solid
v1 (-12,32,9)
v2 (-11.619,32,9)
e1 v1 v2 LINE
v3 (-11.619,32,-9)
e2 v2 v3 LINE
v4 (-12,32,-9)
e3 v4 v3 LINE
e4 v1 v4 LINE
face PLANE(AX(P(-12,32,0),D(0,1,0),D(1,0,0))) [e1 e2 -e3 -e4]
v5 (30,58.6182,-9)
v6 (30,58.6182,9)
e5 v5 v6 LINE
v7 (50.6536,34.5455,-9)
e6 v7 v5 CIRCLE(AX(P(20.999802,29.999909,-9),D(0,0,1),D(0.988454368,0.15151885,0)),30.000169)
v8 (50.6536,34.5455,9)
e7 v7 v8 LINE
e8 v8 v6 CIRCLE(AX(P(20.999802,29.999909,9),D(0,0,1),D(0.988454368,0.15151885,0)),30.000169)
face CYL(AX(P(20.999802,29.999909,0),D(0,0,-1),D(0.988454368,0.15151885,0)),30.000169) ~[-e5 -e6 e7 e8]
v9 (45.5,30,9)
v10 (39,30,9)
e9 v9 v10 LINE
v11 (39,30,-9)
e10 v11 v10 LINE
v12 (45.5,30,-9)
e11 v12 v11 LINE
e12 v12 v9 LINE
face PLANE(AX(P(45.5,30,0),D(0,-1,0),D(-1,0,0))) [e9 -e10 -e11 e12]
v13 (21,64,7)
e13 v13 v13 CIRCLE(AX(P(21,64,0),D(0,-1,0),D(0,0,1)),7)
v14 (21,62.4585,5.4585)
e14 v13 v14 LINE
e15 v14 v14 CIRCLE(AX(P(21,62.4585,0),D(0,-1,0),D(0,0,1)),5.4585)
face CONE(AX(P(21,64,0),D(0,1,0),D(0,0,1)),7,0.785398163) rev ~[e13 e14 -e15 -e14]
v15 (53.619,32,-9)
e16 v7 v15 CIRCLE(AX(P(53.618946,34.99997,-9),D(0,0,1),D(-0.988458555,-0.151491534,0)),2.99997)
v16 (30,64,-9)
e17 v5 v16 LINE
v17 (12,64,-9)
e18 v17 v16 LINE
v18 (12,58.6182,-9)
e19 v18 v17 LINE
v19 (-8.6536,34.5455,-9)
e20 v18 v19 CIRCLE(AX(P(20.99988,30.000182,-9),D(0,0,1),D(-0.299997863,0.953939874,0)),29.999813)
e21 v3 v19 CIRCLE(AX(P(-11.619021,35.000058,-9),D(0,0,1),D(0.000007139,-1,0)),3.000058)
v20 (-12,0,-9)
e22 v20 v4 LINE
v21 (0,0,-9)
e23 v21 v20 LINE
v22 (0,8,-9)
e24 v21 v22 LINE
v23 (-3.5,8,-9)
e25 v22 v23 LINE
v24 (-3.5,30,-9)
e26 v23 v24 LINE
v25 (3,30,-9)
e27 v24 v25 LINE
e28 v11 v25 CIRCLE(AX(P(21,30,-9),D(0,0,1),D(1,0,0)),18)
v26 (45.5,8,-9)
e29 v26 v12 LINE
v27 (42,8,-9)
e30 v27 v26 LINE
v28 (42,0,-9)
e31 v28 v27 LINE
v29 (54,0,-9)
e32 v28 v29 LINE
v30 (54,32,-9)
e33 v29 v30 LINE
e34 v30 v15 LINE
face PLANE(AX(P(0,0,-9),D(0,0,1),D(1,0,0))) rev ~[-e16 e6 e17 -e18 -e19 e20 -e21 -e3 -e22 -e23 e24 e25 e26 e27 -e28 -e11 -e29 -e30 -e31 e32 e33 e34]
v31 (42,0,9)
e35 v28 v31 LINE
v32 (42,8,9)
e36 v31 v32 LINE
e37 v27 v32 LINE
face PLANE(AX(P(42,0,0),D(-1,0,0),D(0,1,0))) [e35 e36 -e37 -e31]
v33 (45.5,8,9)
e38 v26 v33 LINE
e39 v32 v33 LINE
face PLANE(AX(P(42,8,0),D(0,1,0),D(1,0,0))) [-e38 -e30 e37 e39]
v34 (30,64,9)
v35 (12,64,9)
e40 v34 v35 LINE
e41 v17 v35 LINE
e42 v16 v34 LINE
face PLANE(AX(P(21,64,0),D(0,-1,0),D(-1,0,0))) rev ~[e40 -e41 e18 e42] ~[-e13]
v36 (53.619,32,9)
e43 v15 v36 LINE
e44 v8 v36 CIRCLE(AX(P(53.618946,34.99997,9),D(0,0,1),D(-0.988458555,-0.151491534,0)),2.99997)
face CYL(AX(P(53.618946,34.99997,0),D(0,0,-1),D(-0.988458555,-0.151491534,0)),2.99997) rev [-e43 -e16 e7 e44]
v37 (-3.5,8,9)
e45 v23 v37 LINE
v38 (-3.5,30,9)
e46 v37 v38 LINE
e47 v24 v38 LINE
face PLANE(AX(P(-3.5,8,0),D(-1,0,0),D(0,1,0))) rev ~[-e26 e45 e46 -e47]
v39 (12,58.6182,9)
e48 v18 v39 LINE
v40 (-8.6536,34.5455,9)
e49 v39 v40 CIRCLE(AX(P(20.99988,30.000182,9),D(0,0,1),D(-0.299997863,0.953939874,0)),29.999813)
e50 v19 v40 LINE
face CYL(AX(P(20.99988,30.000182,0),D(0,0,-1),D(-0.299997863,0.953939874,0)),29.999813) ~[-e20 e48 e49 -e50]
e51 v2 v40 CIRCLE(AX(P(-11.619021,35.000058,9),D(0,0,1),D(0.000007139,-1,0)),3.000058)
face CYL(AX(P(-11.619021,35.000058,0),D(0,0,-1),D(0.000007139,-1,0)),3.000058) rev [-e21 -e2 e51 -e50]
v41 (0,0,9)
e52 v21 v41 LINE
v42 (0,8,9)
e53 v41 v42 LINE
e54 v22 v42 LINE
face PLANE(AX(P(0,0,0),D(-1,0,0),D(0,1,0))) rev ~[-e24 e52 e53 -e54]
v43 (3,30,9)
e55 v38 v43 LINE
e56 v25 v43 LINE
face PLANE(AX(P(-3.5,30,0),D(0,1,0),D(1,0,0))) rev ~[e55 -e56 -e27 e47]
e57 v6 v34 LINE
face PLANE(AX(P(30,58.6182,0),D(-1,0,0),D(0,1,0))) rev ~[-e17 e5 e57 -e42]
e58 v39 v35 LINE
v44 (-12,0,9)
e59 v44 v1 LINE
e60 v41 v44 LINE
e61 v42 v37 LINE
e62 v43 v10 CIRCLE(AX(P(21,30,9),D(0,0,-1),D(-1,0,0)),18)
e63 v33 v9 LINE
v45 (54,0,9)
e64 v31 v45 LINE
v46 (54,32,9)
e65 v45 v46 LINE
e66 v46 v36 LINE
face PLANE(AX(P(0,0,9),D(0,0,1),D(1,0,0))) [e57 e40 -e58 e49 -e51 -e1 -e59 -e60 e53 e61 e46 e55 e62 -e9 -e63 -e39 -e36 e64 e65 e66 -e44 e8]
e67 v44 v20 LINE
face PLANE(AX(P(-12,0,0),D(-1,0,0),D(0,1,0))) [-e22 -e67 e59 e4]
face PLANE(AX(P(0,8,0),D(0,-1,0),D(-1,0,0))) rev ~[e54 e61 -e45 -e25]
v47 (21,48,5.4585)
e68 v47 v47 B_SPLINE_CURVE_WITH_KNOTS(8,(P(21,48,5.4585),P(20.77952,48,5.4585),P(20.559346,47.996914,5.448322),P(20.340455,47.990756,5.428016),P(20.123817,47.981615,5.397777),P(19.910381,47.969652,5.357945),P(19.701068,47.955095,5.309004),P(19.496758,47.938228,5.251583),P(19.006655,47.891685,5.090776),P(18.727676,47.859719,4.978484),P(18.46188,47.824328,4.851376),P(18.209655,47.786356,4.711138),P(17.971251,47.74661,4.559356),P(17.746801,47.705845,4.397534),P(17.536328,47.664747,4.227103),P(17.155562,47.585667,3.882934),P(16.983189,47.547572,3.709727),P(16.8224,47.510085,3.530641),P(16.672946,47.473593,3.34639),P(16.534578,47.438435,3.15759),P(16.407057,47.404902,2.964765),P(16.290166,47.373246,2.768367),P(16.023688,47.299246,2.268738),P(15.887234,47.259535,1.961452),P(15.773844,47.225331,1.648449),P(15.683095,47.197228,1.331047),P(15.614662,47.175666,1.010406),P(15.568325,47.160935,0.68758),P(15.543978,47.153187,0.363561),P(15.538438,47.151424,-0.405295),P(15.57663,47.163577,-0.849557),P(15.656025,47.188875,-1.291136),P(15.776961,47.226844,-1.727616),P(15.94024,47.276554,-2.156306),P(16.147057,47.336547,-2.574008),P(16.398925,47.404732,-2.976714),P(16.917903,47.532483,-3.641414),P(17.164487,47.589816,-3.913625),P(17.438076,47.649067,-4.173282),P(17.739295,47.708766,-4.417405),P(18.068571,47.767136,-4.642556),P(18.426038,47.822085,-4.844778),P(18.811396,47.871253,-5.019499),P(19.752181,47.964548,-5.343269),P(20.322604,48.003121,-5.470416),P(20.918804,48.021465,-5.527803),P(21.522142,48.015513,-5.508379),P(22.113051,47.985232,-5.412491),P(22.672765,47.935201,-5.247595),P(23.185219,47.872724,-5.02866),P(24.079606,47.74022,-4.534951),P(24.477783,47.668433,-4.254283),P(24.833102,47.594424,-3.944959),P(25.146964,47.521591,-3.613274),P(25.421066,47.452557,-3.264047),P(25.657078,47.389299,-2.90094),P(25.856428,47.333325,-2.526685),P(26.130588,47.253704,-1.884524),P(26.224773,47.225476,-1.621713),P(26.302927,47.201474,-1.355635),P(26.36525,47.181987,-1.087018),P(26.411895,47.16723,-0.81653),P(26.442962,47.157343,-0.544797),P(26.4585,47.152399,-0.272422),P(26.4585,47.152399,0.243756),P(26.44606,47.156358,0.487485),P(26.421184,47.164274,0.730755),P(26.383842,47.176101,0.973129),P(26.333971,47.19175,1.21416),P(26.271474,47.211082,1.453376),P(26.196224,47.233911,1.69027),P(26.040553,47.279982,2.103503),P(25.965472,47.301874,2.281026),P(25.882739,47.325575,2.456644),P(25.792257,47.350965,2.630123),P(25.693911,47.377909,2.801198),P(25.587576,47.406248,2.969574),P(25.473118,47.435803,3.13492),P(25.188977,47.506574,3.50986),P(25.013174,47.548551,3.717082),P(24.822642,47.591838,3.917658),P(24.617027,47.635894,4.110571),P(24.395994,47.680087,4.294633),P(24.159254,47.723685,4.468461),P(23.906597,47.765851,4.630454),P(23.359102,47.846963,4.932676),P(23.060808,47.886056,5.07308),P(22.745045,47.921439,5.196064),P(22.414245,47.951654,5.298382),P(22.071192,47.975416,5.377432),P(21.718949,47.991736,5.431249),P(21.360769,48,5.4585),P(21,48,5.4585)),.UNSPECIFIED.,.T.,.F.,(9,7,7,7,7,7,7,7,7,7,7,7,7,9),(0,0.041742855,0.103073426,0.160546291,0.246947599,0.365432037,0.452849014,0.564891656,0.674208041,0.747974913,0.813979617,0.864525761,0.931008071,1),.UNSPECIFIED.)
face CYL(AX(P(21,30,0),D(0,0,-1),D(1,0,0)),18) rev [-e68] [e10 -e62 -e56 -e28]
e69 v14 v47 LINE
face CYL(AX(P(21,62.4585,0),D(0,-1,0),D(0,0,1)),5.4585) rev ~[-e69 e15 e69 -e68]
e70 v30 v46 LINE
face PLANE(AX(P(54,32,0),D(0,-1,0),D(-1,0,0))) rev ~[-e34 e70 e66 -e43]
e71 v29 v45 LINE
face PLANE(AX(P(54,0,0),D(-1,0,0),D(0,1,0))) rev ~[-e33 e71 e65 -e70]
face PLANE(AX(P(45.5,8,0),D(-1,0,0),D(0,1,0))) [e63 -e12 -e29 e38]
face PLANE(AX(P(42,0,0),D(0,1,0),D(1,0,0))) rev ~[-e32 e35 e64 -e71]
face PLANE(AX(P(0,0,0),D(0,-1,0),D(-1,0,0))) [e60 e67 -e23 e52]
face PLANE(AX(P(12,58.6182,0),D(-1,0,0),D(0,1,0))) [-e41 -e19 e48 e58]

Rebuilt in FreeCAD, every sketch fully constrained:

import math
import FreeCAD as App
import Part
import Sketcher
from FreeCAD import Vector

doc = App.newDocument("Part")
body = doc.addObject("PartDesign::Body", "Body")

# Sketch on XY plane
sketch1 = doc.addObject("Sketcher::SketchObject", "Sketch")
body.addObject(sketch1)
sketch1.AttachmentSupport = (doc.XY_Plane, [""])
sketch1.MapMode = "FlatFace"
sketch1.addGeometry(Part.LineSegment(Vector(-12, 0, 0), Vector(0, 0, 0)), False)
sketch1.addGeometry(Part.LineSegment(Vector(0, 0, 0), Vector(0, 8, 0)), False)
sketch1.addGeometry(Part.LineSegment(Vector(0, 8, 0), Vector(-3.5, 8, 0)), False)
sketch1.addGeometry(Part.LineSegment(Vector(-3.5, 8, 0), Vector(-3.5, 30, 0)), False)
sketch1.addGeometry(Part.LineSegment(Vector(-3.5, 30, 0), Vector(3, 30, 0)), False)
sketch1.addGeometry(Part.ArcOfCircle(Part.Circle(Vector(21, 30, 0), Vector(0, 0, 1), 18), math.radians(0), math.radians(180)), False)
sketch1.addGeometry(Part.LineSegment(Vector(39, 30, 0), Vector(45.5, 30, 0)), False)
sketch1.addGeometry(Part.LineSegment(Vector(45.5, 30, 0), Vector(45.5, 8, 0)), False)
sketch1.addGeometry(Part.LineSegment(Vector(45.5, 8, 0), Vector(42, 8, 0)), False)
sketch1.addGeometry(Part.LineSegment(Vector(42, 8, 0), Vector(42, 0, 0)), False)
sketch1.addGeometry(Part.LineSegment(Vector(42, 0, 0), Vector(54, 0, 0)), False)
sketch1.addGeometry(Part.LineSegment(Vector(54, 0, 0), Vector(54, 32, 0)), False)
sketch1.addGeometry(Part.LineSegment(Vector(54, 32, 0), Vector(53.619, 32, 0)), False)
sketch1.addGeometry(Part.ArcOfCircle(Part.Circle(Vector(53.619, 35, 0), Vector(0, 0, 1), 3.000028), math.radians(-171.286218), math.radians(-90)), False)
sketch1.addGeometry(Part.ArcOfCircle(Part.Circle(Vector(21, 30, 0), Vector(0, 0, 1), 30.000023), math.radians(8.714842), math.radians(72.542411)), False)
sketch1.addGeometry(Part.LineSegment(Vector(30, 58.6182, 0), Vector(30, 64, 0)), False)
sketch1.addGeometry(Part.LineSegment(Vector(30, 64, 0), Vector(12, 64, 0)), False)
sketch1.addGeometry(Part.LineSegment(Vector(12, 64, 0), Vector(12, 58.6182, 0)), False)
sketch1.addGeometry(Part.ArcOfCircle(Part.Circle(Vector(21, 30, 0), Vector(0, 0, 1), 29.999959), math.radians(107.457589), math.radians(171.285158)), False)
sketch1.addGeometry(Part.ArcOfCircle(Part.Circle(Vector(-11.619, 35, 0), Vector(0, 0, 1), 3), math.radians(-90), math.radians(-8.713782)), False)
sketch1.addGeometry(Part.LineSegment(Vector(-11.619, 32, 0), Vector(-12, 32, 0)), False)
sketch1.addGeometry(Part.LineSegment(Vector(-12, 32, 0), Vector(-12, 0, 0)), False)
sketch1.addConstraint(Sketcher.Constraint("Coincident", 0, 2, 1, 1))
sketch1.addConstraint(Sketcher.Constraint("Coincident", 1, 2, 2, 1))
sketch1.addConstraint(Sketcher.Constraint("Coincident", 2, 2, 3, 1))
sketch1.addConstraint(Sketcher.Constraint("Coincident", 3, 2, 4, 1))
sketch1.addConstraint(Sketcher.Constraint("Coincident", 4, 2, 5, 2))
sketch1.addConstraint(Sketcher.Constraint("Coincident", 5, 1, 6, 1))
sketch1.addConstraint(Sketcher.Constraint("Coincident", 6, 2, 7, 1))
sketch1.addConstraint(Sketcher.Constraint("Coincident", 7, 2, 8, 1))
sketch1.addConstraint(Sketcher.Constraint("Coincident", 8, 2, 9, 1))
sketch1.addConstraint(Sketcher.Constraint("Coincident", 9, 2, 10, 1))
sketch1.addConstraint(Sketcher.Constraint("Coincident", 10, 2, 11, 1))
sketch1.addConstraint(Sketcher.Constraint("Coincident", 11, 2, 12, 1))
sketch1.addConstraint(Sketcher.Constraint("Tangent", 12, 2, 13, 2))
sketch1.addConstraint(Sketcher.Constraint("Tangent", 13, 1, 14, 1))
sketch1.addConstraint(Sketcher.Constraint("Coincident", 14, 2, 15, 1))
sketch1.addConstraint(Sketcher.Constraint("Coincident", 15, 2, 16, 1))
sketch1.addConstraint(Sketcher.Constraint("Coincident", 16, 2, 17, 1))
sketch1.addConstraint(Sketcher.Constraint("Coincident", 17, 2, 18, 1))
sketch1.addConstraint(Sketcher.Constraint("Tangent", 18, 2, 19, 2))
sketch1.addConstraint(Sketcher.Constraint("Tangent", 19, 1, 20, 1))
sketch1.addConstraint(Sketcher.Constraint("Coincident", 20, 2, 21, 1))
sketch1.addConstraint(Sketcher.Constraint("Coincident", 21, 2, 0, 1))
sketch1.addConstraint(Sketcher.Constraint("Horizontal", 0))
sketch1.addConstraint(Sketcher.Constraint("Vertical", 1))
sketch1.addConstraint(Sketcher.Constraint("Horizontal", 2))
sketch1.addConstraint(Sketcher.Constraint("Vertical", 3))
sketch1.addConstraint(Sketcher.Constraint("Horizontal", 4))
sketch1.addConstraint(Sketcher.Constraint("Horizontal", 6))
sketch1.addConstraint(Sketcher.Constraint("Vertical", 7))
sketch1.addConstraint(Sketcher.Constraint("Horizontal", 8))
sketch1.addConstraint(Sketcher.Constraint("Vertical", 9))
sketch1.addConstraint(Sketcher.Constraint("Horizontal", 10))
sketch1.addConstraint(Sketcher.Constraint("Vertical", 11))
sketch1.addConstraint(Sketcher.Constraint("Horizontal", 12))
sketch1.addConstraint(Sketcher.Constraint("Vertical", 15))
sketch1.addConstraint(Sketcher.Constraint("Horizontal", 16))
sketch1.addConstraint(Sketcher.Constraint("Vertical", 17))
sketch1.addConstraint(Sketcher.Constraint("Horizontal", 20))
sketch1.addConstraint(Sketcher.Constraint("Vertical", 21))
sketch1.addConstraint(Sketcher.Constraint("Coincident", 0, 2, -1, 1))
sketch1.addConstraint(Sketcher.Constraint("Coincident", 14, 3, 5, 3))
sketch1.addConstraint(Sketcher.Constraint("Coincident", 18, 3, 5, 3))
sketch1.addConstraint(Sketcher.Constraint("Equal", 14, 18))
sketch1.addConstraint(Sketcher.Constraint("Equal", 13, 19))
sketch1.addConstraint(Sketcher.Constraint("PointOnObject", 9, 2, -1))
sketch1.addConstraint(Sketcher.Constraint("Horizontal", 13, 3, 19, 3))
sketch1.addConstraint(Sketcher.Constraint("Horizontal", 18, 3, 3, 2))
sketch1.addConstraint(Sketcher.Constraint("Horizontal", 4, 2, 5, 1))
sketch1.addConstraint(Sketcher.Constraint("Horizontal", 2, 2, 7, 2))
sketch1.addConstraint(Sketcher.Constraint("Horizontal", 14, 2, 17, 2))
sketch1.addConstraint(Sketcher.Constraint("Equal", 4, 6))
sketch1.addConstraint(Sketcher.Constraint("Equal", 2, 8))
sketch1.addConstraint(Sketcher.Constraint("Equal", 0, 10))
sketch1.addConstraint(Sketcher.Constraint("Radius", 5, 18.0))
sketch1.addConstraint(Sketcher.Constraint("Radius", 13, 3.0))
sketch1.addConstraint(Sketcher.Constraint("Radius", 14, 30.0))
sketch1.addConstraint(Sketcher.Constraint("DistanceX", 0, 1, 0, 2, 12.0))
sketch1.addConstraint(Sketcher.Constraint("DistanceX", 16, 2, 16, 1, 18.0))
sketch1.addConstraint(Sketcher.Constraint("DistanceY", 1, 1, 1, 2, 8.0))
sketch1.addConstraint(Sketcher.Constraint("DistanceY", 3, 1, 3, 2, 22.0))
sketch1.addConstraint(Sketcher.Constraint("DistanceY", 11, 1, 11, 2, 32.0))
sketch1.addConstraint(Sketcher.Constraint("DistanceX", 2, 2, 2, 1, 3.5))
sketch1.addConstraint(Sketcher.Constraint("DistanceX", 4, 1, 4, 2, 6.5))
sketch1.addConstraint(Sketcher.Constraint("DistanceY", -1, 1, 15, 2, 64.0))
pad1 = doc.addObject("PartDesign::Pad", "Pad")
body.addObject(pad1)
pad1.Profile = sketch1
pad1.Length = 18
pad1.Midplane = True

# Sketch on XZ plane
sketch2 = doc.addObject("Sketcher::SketchObject", "Sketch001")
body.addObject(sketch2)
sketch2.AttachmentSupport = (doc.XZ_Plane, [""])
sketch2.MapMode = "FlatFace"
sketch2.AttachmentOffset = App.Placement(Vector(0, 0, -64), App.Rotation())
sketch2.addGeometry(Part.Circle(Vector(21, 0, 0), Vector(0, 0, 1), 5.4585), False)
sketch2.addConstraint(Sketcher.Constraint("PointOnObject", 0, 3, -1))
sketch2.addConstraint(Sketcher.Constraint("Diameter", 0, 10.917))
sketch2.addConstraint(Sketcher.Constraint("DistanceX", -1, 1, 0, 3, 21.0))
doc.recompute()
hole = doc.addObject("PartDesign::Hole", "Hole")
body.addObject(hole)
hole.Profile = sketch2
hole.ThreadType = "None"
hole.Diameter = 10.917
hole.DepthType = "Dimension"
hole.Depth = 29.1
hole.DrillPoint = "Flat"
hole.HoleCutType = "Countersink"
hole.HoleCutDiameter = 14
hole.HoleCutCountersinkAngle = 90
hole.Reversed = True

doc.recompute()
